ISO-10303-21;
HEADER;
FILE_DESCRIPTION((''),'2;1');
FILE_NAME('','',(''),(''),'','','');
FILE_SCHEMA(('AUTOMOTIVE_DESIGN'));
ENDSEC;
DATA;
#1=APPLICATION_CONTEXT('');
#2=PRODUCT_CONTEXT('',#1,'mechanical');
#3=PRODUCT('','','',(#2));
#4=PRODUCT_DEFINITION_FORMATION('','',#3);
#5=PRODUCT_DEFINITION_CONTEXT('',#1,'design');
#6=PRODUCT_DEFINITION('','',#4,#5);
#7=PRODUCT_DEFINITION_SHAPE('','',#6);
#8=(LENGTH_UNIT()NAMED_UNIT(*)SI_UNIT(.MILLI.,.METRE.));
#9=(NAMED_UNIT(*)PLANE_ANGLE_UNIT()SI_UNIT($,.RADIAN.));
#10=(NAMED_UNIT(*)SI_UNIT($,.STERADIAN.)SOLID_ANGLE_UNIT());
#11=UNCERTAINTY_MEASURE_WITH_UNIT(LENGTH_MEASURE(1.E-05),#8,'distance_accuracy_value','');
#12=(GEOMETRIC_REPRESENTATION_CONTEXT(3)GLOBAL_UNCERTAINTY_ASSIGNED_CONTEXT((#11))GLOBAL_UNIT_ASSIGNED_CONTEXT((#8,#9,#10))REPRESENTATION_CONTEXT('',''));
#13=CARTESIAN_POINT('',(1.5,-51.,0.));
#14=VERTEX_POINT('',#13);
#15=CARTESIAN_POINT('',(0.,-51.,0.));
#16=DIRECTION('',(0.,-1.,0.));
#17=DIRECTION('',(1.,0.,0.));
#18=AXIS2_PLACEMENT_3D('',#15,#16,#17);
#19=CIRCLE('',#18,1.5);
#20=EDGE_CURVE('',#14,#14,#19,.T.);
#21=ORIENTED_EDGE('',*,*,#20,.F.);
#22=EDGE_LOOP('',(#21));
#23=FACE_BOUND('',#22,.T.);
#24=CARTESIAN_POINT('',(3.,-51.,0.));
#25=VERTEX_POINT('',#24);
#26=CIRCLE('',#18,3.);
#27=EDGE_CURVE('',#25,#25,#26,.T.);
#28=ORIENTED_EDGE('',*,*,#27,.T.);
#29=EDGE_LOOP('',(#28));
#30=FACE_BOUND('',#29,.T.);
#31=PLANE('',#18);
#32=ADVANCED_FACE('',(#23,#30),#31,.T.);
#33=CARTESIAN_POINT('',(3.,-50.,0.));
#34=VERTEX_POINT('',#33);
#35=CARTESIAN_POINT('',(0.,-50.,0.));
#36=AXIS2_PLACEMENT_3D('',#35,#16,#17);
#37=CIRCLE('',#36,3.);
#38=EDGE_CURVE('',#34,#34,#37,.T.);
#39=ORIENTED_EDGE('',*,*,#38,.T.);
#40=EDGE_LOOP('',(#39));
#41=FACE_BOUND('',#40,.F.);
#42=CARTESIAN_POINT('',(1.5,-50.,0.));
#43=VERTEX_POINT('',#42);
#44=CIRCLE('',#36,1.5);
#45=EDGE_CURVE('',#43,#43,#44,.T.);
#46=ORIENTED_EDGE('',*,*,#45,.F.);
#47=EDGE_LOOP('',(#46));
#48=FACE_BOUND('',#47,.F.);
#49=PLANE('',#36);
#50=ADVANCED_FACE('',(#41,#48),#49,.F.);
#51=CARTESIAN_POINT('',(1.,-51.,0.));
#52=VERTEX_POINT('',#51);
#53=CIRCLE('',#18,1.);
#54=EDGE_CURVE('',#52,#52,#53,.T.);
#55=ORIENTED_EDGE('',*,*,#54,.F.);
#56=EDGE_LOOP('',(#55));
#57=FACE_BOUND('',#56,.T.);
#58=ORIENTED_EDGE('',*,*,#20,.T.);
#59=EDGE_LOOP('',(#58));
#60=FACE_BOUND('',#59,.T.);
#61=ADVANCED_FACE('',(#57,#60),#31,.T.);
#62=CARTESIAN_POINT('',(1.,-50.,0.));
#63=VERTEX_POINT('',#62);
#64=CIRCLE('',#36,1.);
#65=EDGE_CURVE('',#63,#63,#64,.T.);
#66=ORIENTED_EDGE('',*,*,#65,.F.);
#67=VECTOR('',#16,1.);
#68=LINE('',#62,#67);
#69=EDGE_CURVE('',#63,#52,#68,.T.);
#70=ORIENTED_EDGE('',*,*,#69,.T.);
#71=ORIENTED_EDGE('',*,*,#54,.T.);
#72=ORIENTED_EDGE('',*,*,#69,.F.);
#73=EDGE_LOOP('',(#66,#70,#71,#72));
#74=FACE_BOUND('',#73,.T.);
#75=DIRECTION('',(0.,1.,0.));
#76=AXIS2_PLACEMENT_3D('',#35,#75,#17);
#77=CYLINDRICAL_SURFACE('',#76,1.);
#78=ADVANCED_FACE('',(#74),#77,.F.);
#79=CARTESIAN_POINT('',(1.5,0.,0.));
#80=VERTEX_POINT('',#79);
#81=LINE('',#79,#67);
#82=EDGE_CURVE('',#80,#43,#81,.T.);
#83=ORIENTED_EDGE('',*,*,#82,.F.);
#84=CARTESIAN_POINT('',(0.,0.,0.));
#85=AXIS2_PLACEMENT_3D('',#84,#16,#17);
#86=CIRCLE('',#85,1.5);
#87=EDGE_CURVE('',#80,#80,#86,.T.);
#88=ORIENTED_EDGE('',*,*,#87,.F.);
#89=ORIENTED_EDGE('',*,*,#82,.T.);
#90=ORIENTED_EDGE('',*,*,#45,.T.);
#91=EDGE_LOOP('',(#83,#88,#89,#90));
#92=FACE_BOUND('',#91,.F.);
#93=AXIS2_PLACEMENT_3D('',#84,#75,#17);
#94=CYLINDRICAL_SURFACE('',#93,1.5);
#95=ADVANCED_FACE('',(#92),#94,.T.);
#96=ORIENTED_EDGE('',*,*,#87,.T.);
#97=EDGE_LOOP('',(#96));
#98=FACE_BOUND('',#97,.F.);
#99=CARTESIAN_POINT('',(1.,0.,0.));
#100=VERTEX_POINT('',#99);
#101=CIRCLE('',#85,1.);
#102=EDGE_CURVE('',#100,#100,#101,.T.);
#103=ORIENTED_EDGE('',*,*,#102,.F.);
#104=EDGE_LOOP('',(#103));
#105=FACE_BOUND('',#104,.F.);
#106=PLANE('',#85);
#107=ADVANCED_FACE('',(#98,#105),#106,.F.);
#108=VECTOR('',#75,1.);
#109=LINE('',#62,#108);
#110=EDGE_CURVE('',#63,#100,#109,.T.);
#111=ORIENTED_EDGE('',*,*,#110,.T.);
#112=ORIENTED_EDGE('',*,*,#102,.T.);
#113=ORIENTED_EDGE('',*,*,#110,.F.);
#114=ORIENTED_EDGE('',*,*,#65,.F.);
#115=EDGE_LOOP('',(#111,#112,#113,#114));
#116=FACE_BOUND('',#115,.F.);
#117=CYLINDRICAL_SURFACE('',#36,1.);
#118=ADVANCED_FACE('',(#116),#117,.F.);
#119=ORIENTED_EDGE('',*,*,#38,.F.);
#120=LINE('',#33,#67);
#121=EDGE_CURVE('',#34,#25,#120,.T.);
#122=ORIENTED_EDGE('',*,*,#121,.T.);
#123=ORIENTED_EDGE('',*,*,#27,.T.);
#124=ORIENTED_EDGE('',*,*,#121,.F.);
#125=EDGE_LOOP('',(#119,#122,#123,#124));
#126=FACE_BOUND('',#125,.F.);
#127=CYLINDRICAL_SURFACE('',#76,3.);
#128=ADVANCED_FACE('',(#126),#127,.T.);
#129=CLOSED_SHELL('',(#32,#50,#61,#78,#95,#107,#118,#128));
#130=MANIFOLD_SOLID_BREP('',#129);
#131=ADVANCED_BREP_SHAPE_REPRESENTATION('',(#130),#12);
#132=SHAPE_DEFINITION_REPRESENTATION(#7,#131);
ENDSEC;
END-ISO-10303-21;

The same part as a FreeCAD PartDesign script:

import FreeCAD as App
import Part
import Sketcher

doc = App.newDocument("Part")
params = doc.addObject("Spreadsheet::Sheet", "Params")
for row, (alias, value) in enumerate([
    ("sketch1_diameter", "3 mm"),
    ("pad1_length", "50 mm"),
    ("sketch2_diameter", "2 mm"),
    ("sketch3_diameter", "6 mm"),
    ("sketch3_diameter2", "2 mm"),
    ("pad2_length", "1 mm"),
], start=1):
    params.set(f"A{row}", alias)
    params.set(f"B{row}", "=" + value)
    params.setAlias(f"B{row}", alias)

body = doc.addObject("PartDesign::Body", "Body")

# Sketch on XZ plane
sketch1 = body.newObject("Sketcher::SketchObject", "Sketch")
sketch1.AttachmentSupport = (doc.getObject("XZ_Plane"), [""])
sketch1.MapMode = "FlatFace"
sketch1.addGeometry(Part.Circle(App.Vector(0, 0, 0), App.Vector(0, 0, 1), 1.5), False)
sketch1.addConstraint([
    Sketcher.Constraint("Coincident", 0, 3, -1, 1),
    Sketcher.Constraint("Diameter", 0, 3.0),
])
sketch1.setExpression("Constraints[1]", "Params.sketch1_diameter")
pad1 = body.newObject("PartDesign::Pad", "Pad")
pad1.Profile = sketch1
pad1.setExpression("Length", "Params.pad1_length")

# Sketch on XZ plane
sketch2 = body.newObject("Sketcher::SketchObject", "Sketch001")
sketch2.AttachmentSupport = (doc.getObject("XZ_Plane"), [""])
sketch2.MapMode = "FlatFace"
sketch2.AttachmentOffset = App.Placement(App.Vector(0, 0, 50), App.Rotation())
sketch2.addGeometry(Part.Circle(App.Vector(0, 0, 0), App.Vector(0, 0, 1), 1), False)
sketch2.addConstraint([
    Sketcher.Constraint("Coincident", 0, 3, -1, 1),
    Sketcher.Constraint("Diameter", 0, 2.0),
])
sketch2.setExpression("Constraints[1]", "Params.sketch2_diameter")
pocket1 = body.newObject("PartDesign::Pocket", "Pocket")
pocket1.Profile = sketch2
pocket1.Type = "ThroughAll"

# Sketch on XZ plane
sketch3 = body.newObject("Sketcher::SketchObject", "Sketch002")
sketch3.AttachmentSupport = (doc.getObject("XZ_Plane"), [""])
sketch3.MapMode = "FlatFace"
sketch3.AttachmentOffset = App.Placement(App.Vector(0, 0, 50), App.Rotation())
sketch3.addGeometry([
    Part.Circle(App.Vector(0, 0, 0), App.Vector(0, 0, 1), 3),
    Part.Circle(App.Vector(0, 0, 0), App.Vector(0, 0, 1), 1),
], False)
sketch3.addConstraint([
    Sketcher.Constraint("Coincident", 0, 3, -1, 1),
    Sketcher.Constraint("Coincident", 1, 3, -1, 1),
    Sketcher.Constraint("Diameter", 0, 6.0),
    Sketcher.Constraint("Diameter", 1, 2.0),
])
sketch3.setExpression("Constraints[2]", "Params.sketch3_diameter")
sketch3.setExpression("Constraints[3]", "Params.sketch3_diameter2")
pad2 = body.newObject("PartDesign::Pad", "Pad001")
pad2.Profile = sketch3
pad2.setExpression("Length", "Params.pad2_length")

doc.recompute()
